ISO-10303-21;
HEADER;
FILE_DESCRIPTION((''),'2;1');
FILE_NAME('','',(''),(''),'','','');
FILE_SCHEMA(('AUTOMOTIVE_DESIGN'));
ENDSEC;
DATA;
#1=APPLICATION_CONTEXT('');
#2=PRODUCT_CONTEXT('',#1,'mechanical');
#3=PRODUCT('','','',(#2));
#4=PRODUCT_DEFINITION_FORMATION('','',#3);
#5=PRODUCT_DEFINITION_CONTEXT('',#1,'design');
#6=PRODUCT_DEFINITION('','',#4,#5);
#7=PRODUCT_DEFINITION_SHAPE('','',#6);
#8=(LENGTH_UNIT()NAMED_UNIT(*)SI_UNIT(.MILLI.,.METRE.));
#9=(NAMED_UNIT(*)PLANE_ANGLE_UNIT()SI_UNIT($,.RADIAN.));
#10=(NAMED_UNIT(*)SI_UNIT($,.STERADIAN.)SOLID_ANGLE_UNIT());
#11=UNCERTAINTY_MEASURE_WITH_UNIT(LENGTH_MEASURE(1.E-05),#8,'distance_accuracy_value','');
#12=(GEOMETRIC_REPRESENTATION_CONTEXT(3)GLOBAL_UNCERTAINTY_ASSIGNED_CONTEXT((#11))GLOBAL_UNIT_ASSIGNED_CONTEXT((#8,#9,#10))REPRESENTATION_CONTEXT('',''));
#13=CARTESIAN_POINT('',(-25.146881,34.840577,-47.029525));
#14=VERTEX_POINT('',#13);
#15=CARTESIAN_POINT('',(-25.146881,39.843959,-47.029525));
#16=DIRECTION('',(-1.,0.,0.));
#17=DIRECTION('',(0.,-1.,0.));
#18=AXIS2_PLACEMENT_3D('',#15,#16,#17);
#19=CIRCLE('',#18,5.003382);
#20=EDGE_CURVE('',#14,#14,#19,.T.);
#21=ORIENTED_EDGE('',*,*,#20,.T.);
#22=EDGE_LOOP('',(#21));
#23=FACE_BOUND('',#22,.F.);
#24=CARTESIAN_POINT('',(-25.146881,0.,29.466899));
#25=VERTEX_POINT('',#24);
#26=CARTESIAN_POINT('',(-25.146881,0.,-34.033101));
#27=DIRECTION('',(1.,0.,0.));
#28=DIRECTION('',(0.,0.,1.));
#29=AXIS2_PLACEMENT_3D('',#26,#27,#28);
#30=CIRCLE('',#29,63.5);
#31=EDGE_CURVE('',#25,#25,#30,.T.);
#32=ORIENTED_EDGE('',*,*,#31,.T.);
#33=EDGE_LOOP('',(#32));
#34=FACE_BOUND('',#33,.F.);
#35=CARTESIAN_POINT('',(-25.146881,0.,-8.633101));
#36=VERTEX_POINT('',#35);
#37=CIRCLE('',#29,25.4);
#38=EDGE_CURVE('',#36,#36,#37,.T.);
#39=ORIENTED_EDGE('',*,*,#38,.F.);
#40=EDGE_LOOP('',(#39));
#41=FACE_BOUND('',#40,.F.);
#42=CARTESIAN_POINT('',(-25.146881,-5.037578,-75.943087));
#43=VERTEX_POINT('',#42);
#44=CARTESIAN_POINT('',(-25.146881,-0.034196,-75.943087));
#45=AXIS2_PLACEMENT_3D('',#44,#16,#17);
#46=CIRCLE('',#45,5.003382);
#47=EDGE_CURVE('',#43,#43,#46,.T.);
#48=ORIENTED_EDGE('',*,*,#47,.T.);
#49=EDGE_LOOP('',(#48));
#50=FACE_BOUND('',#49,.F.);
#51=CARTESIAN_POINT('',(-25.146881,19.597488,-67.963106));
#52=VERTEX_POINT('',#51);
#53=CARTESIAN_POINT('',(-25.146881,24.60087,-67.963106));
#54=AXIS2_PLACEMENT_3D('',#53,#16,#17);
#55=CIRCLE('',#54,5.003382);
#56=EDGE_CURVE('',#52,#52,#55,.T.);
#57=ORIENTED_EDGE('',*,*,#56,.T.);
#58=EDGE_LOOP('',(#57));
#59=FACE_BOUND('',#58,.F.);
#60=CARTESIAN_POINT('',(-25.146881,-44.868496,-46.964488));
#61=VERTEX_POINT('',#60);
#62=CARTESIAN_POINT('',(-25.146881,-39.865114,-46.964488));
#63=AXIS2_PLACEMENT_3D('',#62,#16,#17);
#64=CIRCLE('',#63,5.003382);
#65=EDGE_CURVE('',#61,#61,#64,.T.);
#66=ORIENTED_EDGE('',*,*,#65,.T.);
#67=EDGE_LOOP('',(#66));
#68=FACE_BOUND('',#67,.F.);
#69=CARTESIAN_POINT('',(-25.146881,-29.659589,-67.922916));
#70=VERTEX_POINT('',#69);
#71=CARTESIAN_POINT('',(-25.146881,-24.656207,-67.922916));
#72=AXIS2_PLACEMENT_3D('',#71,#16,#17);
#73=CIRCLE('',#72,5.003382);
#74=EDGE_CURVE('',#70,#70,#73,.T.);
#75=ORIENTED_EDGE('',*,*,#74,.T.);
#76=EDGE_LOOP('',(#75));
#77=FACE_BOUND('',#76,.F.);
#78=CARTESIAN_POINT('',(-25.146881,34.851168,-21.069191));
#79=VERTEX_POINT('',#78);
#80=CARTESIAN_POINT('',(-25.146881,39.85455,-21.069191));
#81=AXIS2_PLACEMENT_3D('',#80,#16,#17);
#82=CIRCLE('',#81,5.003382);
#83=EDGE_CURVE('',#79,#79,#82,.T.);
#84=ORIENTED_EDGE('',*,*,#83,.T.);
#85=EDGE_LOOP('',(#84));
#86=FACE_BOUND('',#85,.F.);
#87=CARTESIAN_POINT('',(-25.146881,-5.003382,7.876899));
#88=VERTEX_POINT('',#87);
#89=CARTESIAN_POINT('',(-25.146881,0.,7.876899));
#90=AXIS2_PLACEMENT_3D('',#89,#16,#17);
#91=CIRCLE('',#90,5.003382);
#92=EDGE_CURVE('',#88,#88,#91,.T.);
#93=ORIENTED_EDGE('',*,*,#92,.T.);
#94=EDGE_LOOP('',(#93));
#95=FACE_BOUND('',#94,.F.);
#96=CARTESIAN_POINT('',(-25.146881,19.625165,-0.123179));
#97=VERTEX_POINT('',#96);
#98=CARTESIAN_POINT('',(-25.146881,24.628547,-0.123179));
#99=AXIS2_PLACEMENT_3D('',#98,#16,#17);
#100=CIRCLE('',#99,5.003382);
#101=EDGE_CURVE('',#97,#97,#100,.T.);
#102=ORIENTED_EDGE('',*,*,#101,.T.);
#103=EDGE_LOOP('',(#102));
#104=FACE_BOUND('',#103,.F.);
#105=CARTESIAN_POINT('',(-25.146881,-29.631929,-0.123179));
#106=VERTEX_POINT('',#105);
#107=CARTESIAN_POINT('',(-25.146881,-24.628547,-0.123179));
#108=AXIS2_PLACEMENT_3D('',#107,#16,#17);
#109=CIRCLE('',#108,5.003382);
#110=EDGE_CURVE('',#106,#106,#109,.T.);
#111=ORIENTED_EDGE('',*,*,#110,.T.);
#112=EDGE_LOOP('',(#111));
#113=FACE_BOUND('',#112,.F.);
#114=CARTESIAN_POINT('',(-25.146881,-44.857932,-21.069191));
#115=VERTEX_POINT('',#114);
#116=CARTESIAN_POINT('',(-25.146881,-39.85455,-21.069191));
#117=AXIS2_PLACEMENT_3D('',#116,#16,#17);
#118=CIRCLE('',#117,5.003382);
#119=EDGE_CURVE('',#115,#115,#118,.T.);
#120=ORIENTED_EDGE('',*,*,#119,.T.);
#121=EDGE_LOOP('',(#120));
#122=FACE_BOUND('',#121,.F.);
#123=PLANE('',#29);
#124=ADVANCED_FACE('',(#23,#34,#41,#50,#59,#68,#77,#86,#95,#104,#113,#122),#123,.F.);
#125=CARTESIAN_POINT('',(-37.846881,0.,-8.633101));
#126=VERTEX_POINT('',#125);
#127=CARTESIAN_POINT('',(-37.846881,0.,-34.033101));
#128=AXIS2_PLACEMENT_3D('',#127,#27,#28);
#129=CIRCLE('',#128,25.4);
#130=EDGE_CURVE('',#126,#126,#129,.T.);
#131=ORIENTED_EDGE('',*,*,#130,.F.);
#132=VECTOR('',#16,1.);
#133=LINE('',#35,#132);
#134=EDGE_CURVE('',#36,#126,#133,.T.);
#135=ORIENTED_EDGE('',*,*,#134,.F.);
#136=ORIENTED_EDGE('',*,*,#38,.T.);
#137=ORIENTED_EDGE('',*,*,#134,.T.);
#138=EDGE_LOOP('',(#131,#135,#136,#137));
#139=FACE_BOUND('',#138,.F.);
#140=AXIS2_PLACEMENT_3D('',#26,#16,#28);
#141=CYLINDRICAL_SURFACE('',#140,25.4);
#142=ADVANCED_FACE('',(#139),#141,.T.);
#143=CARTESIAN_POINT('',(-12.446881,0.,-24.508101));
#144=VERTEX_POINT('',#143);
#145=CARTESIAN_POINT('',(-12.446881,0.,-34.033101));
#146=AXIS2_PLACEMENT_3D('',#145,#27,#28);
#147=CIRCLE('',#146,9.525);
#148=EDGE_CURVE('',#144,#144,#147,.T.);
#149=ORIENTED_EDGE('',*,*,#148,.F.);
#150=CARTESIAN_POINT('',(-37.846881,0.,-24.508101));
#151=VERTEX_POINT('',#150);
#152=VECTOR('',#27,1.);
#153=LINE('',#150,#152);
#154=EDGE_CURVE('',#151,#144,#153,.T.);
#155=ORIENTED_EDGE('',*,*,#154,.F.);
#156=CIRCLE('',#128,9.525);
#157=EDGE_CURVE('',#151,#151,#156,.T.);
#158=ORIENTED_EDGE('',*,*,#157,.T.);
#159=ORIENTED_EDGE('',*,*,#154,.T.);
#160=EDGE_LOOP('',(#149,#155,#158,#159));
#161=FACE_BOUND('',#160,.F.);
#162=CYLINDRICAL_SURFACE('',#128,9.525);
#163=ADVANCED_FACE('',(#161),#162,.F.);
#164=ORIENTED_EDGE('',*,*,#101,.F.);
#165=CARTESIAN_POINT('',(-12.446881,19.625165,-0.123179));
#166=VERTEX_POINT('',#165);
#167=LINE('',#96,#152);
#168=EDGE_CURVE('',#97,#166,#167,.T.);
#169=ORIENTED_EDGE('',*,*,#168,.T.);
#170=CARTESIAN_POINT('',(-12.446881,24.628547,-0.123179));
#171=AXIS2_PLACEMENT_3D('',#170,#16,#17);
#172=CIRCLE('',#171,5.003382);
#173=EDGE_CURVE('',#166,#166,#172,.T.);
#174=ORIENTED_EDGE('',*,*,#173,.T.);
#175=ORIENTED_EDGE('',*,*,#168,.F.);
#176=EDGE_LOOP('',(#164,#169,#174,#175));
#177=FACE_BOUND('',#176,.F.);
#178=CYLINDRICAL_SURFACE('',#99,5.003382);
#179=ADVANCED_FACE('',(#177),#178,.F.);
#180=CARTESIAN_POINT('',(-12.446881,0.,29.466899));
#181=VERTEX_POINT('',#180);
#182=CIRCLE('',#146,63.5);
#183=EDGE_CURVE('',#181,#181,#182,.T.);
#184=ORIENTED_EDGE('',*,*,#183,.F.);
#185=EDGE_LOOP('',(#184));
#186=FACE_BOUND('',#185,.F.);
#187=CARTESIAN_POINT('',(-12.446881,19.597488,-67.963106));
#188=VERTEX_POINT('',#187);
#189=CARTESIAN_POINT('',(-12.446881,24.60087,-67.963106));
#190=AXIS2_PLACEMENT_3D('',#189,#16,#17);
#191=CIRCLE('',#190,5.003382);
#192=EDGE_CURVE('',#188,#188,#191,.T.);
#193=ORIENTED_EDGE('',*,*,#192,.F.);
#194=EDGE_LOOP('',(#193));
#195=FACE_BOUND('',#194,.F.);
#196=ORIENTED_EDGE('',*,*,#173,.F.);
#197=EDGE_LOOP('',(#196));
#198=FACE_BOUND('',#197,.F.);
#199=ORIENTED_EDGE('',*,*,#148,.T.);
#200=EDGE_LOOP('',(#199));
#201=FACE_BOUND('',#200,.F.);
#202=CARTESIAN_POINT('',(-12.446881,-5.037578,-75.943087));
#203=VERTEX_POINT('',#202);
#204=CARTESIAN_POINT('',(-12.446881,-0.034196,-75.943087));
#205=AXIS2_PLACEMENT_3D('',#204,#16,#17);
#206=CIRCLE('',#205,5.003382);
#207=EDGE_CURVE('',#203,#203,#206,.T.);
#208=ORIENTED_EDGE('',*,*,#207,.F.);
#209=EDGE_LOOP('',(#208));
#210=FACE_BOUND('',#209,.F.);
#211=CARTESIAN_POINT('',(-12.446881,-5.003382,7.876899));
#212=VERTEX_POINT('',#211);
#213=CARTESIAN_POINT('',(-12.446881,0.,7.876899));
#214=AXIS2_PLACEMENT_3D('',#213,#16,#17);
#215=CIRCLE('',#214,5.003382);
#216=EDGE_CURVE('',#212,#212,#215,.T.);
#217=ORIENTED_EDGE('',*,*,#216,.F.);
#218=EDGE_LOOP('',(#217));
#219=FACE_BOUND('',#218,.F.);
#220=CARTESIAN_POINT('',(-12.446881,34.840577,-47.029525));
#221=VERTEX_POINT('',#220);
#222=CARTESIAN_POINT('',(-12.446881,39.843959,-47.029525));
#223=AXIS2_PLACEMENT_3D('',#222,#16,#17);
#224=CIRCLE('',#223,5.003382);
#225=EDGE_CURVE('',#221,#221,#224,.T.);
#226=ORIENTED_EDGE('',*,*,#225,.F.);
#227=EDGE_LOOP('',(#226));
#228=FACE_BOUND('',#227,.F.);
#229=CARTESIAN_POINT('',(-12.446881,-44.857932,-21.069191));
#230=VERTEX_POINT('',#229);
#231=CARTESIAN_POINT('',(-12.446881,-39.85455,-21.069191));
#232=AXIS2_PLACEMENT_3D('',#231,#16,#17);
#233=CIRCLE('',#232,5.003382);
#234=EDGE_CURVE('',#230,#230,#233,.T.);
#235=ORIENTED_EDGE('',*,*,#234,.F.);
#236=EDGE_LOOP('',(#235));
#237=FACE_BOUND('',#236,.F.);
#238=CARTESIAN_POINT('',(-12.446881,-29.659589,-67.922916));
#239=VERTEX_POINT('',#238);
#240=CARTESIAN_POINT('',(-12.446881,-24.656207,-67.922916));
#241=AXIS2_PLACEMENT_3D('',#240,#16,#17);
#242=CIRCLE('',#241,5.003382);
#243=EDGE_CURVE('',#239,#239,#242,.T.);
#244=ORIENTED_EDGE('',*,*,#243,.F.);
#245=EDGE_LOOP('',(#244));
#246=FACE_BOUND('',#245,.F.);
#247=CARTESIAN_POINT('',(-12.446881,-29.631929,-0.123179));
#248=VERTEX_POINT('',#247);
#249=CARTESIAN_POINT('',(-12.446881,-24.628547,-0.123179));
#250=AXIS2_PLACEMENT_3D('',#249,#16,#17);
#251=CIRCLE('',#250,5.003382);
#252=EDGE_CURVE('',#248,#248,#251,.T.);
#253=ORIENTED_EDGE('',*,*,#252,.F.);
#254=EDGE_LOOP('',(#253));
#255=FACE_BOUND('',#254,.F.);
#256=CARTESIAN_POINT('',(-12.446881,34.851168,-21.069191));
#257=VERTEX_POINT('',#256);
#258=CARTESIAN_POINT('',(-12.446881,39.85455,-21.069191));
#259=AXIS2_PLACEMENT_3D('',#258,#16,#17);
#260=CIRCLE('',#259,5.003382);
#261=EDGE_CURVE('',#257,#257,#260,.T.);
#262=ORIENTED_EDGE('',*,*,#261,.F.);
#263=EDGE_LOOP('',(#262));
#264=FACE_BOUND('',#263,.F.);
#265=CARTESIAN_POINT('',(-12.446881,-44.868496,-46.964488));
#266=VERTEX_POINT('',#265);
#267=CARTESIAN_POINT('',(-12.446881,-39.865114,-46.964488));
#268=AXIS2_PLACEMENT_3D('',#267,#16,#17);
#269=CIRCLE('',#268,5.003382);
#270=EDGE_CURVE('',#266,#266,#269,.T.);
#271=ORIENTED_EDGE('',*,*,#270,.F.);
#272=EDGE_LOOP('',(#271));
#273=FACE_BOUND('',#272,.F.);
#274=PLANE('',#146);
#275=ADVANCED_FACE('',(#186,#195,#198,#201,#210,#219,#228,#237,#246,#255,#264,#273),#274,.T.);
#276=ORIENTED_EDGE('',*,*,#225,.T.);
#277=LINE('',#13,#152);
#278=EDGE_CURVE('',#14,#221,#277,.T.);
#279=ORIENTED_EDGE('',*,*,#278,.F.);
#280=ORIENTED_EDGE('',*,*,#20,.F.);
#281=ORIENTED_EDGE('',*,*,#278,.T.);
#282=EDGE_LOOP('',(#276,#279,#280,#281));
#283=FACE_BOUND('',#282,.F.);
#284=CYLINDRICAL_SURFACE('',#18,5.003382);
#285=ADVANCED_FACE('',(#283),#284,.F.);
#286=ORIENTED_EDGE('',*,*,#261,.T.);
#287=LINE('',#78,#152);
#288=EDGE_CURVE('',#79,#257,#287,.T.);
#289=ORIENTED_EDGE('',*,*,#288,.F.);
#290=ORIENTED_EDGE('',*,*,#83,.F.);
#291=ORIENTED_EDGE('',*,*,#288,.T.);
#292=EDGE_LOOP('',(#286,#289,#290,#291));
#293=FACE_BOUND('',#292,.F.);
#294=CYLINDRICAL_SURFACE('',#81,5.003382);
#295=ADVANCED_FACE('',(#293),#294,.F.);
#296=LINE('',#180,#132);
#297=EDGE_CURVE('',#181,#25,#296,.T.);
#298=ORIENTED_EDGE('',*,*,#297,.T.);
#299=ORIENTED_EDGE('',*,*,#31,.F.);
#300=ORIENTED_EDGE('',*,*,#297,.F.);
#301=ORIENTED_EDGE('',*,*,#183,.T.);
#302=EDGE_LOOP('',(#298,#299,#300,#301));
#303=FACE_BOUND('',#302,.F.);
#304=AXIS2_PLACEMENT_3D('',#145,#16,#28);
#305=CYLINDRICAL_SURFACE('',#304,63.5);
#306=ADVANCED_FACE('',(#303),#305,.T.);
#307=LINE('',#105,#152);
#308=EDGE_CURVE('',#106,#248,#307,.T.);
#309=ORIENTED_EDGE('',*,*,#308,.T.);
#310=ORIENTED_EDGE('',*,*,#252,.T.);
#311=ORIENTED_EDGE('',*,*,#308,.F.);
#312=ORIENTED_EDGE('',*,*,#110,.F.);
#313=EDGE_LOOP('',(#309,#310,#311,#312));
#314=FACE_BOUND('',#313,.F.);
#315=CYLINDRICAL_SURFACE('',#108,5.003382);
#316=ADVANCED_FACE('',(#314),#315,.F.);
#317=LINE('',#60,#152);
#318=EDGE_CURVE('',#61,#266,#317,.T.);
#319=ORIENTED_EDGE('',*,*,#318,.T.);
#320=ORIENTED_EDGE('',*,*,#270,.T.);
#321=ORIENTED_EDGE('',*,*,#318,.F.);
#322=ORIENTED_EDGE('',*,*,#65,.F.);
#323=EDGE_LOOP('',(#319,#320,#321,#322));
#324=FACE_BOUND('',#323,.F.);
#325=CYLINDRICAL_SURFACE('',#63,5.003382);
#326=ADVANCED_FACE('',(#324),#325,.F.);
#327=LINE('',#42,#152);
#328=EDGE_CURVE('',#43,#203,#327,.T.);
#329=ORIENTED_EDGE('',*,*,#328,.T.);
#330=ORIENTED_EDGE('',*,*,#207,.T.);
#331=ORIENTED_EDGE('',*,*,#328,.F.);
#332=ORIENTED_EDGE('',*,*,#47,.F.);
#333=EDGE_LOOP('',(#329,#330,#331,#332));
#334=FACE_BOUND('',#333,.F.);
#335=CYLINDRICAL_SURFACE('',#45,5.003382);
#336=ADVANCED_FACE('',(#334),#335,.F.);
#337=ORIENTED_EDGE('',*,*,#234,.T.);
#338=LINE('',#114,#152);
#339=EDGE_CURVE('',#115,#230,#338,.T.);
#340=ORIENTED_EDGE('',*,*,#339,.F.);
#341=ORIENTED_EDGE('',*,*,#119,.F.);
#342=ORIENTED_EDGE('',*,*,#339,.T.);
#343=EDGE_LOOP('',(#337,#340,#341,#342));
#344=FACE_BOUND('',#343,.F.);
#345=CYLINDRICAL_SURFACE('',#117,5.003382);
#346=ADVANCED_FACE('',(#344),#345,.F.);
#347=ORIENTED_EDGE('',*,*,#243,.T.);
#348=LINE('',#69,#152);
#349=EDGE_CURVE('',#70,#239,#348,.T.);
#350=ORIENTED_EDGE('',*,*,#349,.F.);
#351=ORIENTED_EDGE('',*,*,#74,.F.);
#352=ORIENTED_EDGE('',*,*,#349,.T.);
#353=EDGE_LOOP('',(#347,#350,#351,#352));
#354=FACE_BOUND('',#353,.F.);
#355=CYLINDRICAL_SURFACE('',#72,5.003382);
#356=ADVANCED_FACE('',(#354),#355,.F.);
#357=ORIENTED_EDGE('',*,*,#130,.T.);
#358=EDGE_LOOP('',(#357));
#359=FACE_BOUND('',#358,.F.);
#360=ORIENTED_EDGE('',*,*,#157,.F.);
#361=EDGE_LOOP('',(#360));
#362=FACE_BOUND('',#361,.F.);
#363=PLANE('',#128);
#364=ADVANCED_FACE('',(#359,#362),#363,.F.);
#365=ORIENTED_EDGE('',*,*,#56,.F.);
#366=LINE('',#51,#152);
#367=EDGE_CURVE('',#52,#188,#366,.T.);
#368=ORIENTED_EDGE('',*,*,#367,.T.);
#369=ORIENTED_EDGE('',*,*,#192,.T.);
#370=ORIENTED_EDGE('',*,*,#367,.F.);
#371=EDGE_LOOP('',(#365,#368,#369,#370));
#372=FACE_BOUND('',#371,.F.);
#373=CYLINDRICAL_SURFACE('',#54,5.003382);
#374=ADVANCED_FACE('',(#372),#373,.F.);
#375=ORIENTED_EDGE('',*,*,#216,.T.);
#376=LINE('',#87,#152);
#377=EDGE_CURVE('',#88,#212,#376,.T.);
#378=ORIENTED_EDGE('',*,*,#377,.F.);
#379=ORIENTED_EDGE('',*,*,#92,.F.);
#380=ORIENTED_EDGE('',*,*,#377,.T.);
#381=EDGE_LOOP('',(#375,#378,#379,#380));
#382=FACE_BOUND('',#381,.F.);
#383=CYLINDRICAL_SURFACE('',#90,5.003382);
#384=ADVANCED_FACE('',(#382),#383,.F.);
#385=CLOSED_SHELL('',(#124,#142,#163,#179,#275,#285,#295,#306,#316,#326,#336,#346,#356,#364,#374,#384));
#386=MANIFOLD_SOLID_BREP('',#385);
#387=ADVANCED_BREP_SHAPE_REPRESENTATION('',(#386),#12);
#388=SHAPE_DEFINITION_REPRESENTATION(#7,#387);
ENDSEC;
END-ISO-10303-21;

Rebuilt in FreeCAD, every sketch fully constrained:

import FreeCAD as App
import Part
import Sketcher
Q = App.Units.Quantity


def add_polygon(sketch, points):
    """Adds a closed chain of lines whose ends are joined by coincident constraints."""
    first, n = sketch.GeometryCount, len(points)
    for a, b in zip(points, points[1:] + points[:1]):
        sketch.addGeometry(Part.LineSegment(App.Vector(*a, 0), App.Vector(*b, 0)), False)
    for i in range(n):
        sketch.addConstraint(Sketcher.Constraint("Coincident", first + i, 2, first + (i + 1) % n, 1))

doc = App.newDocument("Part")
params = doc.addObject("Spreadsheet::Sheet", "Params")
for row, (alias, value) in enumerate([
    ("sketch1_width", "1 in"),
    ("sketch1_height", "1.5 in"),
    ("sketch1_height2", "0.625 in"),
    ("revolution_angle", "360 deg"),
    ("pocket1_length", "1 in"),
], start=1):
    params.set(f"A{row}", alias)
    params.set(f"B{row}", "=" + value)
    params.setAlias(f"B{row}", alias)

body = doc.addObject("PartDesign::Body", "Body")

# Sketch on XZ plane
sketch1 = doc.addObject("Sketcher::SketchObject", "Sketch")
body.addObject(sketch1)
sketch1.AttachmentSupport = (doc.XZ_Plane, [""])
sketch1.MapMode = "FlatFace"
add_polygon(sketch1, [(-12, 29), (-25, 29), (-25, -9), (-38, -9), (-38, -25), (-12, -25)])  # lines 0-5
sketch1.addGeometry(Part.LineSegment(App.Vector(-38, -34, 0), App.Vector(-12, -34, 0)), True)  # axis
sketch1.addConstraint([
    Sketcher.Constraint("Horizontal", 0),
    Sketcher.Constraint("Vertical", 1),
    Sketcher.Constraint("Horizontal", 2),
    Sketcher.Constraint("Vertical", 3),
    Sketcher.Constraint("Horizontal", 4),
    Sketcher.Constraint("Vertical", 5),
    Sketcher.Constraint("Horizontal", 6),
    Sketcher.Constraint("Vertical", 3, 2, 6, 1),
    Sketcher.Constraint("Vertical", 5, 2, 6, 2),
    Sketcher.Constraint("Equal", 0, 2),
    Sketcher.Constraint("DistanceX", 4, 1, 4, 2, Q("1 in")),
    Sketcher.Constraint("DistanceY", 1, 2, 1, 1, Q("1.5 in")),
    Sketcher.Constraint("DistanceY", 6, 1, 2, 2, Q("1 in")),
    Sketcher.Constraint("DistanceY", 3, 2, 3, 1, Q("0.625 in")),
    Sketcher.Constraint("DistanceY", -1, 1, 0, 2, 29.466899),
    Sketcher.Constraint("DistanceX", 0, 2, -1, 1, 25.146881),
])
sketch1.setExpression("Constraints[16]", "Params.sketch1_width")
sketch1.setExpression("Constraints[17]", "Params.sketch1_height")
sketch1.setExpression("Constraints[19]", "Params.sketch1_height2")
revolution = doc.addObject("PartDesign::Revolution", "Revolution")
body.addObject(revolution)
revolution.Profile = sketch1
revolution.ReferenceAxis = (sketch1, ["Axis0"])
revolution.setExpression("Angle", "Params.revolution_angle")

# Sketch on YZ plane
sketch2 = doc.addObject("Sketcher::SketchObject", "Sketch001")
body.addObject(sketch2)
sketch2.AttachmentSupport = (doc.YZ_Plane, [""])
sketch2.MapMode = "FlatFace"
sketch2.AttachmentOffset = App.Placement(App.Vector(0, 0, -25.146881), App.Rotation())
sketch2.addGeometry([
    Part.Circle(App.Vector(0, 8, 0), App.Vector(0, 0, 1), 5),  # 0
    Part.Circle(App.Vector(-25, 0, 0), App.Vector(0, 0, 1), 5),  # 1
    Part.Circle(App.Vector(-40, -21, 0), App.Vector(0, 0, 1), 5),  # 2
    Part.Circle(App.Vector(-40, -47, 0), App.Vector(0, 0, 1), 5),  # 3
    Part.Circle(App.Vector(-25, -68, 0), App.Vector(0, 0, 1), 5),  # 4
    Part.Circle(App.Vector(25, -68, 0), App.Vector(0, 0, 1), 5),  # 5
    Part.Circle(App.Vector(0, -76, 0), App.Vector(0, 0, 1), 5),  # 6
    Part.Circle(App.Vector(40, -47, 0), App.Vector(0, 0, 1), 5),  # 7
    Part.Circle(App.Vector(40, -21, 0), App.Vector(0, 0, 1), 5),  # 8
    Part.Circle(App.Vector(25, 0, 0), App.Vector(0, 0, 1), 5),  # 9
], False)
sketch2.addConstraint([
    Sketcher.Constraint("Equal", 0, 1),
    Sketcher.Constraint("Equal", 1, 2),
    Sketcher.Constraint("Equal", 2, 3),
    Sketcher.Constraint("Equal", 3, 4),
    Sketcher.Constraint("Equal", 4, 5),
    Sketcher.Constraint("Equal", 5, 6),
    Sketcher.Constraint("Equal", 6, 7),
    Sketcher.Constraint("Equal", 7, 8),
    Sketcher.Constraint("Equal", 8, 9),
    Sketcher.Constraint("Symmetric", 2, 3, 8, 3, -2),
    Sketcher.Constraint("Symmetric", 1, 3, 9, 3, -2),
    Sketcher.Constraint("PointOnObject", 0, 3, -2),
    Sketcher.Constraint("Diameter", 0, 10.006764),
    Sketcher.Constraint("DistanceY", 3, 3, 2, 3, Q("1.0194999 in")),
    Sketcher.Constraint("DistanceY", -1, 1, 0, 3, 7.876899),
    Sketcher.Constraint("DistanceY", 6, 3, 3, 3, 28.978599),
    Sketcher.Constraint("DistanceY", 1, 3, -1, 1, 0.123179),
    Sketcher.Constraint("DistanceX", 2, 3, -1, 1, 39.85455),
    Sketcher.Constraint("DistanceY", 2, 3, -1, 1, 21.069191),
    Sketcher.Constraint("DistanceX", -1, 1, 5, 3, 24.60087),
    Sketcher.Constraint("DistanceX", -1, 1, 7, 3, 39.843959),
    Sketcher.Constraint("DistanceX", 4, 3, 1, 3, 0.02766),
    Sketcher.Constraint("DistanceY", 5, 3, 4, 3, 0.04019),
    Sketcher.Constraint("DistanceX", 4, 3, 6, 3, 24.622011),
    Sketcher.Constraint("DistanceY", 6, 3, 4, 3, 8.020171),
    Sketcher.Constraint("DistanceY", 5, 3, 7, 3, 20.933581),
    Sketcher.Constraint("DistanceX", 9, 3, 7, 3, 15.215412),
    Sketcher.Constraint("DistanceX", 3, 3, -1, 1, 39.865114),
])
pocket1 = doc.addObject("PartDesign::Pocket", "Pocket")
body.addObject(pocket1)
pocket1.Profile = sketch2
pocket1.setExpression("Length", "Params.pocket1_length")
pocket1.Reversed = True

doc.recompute()
